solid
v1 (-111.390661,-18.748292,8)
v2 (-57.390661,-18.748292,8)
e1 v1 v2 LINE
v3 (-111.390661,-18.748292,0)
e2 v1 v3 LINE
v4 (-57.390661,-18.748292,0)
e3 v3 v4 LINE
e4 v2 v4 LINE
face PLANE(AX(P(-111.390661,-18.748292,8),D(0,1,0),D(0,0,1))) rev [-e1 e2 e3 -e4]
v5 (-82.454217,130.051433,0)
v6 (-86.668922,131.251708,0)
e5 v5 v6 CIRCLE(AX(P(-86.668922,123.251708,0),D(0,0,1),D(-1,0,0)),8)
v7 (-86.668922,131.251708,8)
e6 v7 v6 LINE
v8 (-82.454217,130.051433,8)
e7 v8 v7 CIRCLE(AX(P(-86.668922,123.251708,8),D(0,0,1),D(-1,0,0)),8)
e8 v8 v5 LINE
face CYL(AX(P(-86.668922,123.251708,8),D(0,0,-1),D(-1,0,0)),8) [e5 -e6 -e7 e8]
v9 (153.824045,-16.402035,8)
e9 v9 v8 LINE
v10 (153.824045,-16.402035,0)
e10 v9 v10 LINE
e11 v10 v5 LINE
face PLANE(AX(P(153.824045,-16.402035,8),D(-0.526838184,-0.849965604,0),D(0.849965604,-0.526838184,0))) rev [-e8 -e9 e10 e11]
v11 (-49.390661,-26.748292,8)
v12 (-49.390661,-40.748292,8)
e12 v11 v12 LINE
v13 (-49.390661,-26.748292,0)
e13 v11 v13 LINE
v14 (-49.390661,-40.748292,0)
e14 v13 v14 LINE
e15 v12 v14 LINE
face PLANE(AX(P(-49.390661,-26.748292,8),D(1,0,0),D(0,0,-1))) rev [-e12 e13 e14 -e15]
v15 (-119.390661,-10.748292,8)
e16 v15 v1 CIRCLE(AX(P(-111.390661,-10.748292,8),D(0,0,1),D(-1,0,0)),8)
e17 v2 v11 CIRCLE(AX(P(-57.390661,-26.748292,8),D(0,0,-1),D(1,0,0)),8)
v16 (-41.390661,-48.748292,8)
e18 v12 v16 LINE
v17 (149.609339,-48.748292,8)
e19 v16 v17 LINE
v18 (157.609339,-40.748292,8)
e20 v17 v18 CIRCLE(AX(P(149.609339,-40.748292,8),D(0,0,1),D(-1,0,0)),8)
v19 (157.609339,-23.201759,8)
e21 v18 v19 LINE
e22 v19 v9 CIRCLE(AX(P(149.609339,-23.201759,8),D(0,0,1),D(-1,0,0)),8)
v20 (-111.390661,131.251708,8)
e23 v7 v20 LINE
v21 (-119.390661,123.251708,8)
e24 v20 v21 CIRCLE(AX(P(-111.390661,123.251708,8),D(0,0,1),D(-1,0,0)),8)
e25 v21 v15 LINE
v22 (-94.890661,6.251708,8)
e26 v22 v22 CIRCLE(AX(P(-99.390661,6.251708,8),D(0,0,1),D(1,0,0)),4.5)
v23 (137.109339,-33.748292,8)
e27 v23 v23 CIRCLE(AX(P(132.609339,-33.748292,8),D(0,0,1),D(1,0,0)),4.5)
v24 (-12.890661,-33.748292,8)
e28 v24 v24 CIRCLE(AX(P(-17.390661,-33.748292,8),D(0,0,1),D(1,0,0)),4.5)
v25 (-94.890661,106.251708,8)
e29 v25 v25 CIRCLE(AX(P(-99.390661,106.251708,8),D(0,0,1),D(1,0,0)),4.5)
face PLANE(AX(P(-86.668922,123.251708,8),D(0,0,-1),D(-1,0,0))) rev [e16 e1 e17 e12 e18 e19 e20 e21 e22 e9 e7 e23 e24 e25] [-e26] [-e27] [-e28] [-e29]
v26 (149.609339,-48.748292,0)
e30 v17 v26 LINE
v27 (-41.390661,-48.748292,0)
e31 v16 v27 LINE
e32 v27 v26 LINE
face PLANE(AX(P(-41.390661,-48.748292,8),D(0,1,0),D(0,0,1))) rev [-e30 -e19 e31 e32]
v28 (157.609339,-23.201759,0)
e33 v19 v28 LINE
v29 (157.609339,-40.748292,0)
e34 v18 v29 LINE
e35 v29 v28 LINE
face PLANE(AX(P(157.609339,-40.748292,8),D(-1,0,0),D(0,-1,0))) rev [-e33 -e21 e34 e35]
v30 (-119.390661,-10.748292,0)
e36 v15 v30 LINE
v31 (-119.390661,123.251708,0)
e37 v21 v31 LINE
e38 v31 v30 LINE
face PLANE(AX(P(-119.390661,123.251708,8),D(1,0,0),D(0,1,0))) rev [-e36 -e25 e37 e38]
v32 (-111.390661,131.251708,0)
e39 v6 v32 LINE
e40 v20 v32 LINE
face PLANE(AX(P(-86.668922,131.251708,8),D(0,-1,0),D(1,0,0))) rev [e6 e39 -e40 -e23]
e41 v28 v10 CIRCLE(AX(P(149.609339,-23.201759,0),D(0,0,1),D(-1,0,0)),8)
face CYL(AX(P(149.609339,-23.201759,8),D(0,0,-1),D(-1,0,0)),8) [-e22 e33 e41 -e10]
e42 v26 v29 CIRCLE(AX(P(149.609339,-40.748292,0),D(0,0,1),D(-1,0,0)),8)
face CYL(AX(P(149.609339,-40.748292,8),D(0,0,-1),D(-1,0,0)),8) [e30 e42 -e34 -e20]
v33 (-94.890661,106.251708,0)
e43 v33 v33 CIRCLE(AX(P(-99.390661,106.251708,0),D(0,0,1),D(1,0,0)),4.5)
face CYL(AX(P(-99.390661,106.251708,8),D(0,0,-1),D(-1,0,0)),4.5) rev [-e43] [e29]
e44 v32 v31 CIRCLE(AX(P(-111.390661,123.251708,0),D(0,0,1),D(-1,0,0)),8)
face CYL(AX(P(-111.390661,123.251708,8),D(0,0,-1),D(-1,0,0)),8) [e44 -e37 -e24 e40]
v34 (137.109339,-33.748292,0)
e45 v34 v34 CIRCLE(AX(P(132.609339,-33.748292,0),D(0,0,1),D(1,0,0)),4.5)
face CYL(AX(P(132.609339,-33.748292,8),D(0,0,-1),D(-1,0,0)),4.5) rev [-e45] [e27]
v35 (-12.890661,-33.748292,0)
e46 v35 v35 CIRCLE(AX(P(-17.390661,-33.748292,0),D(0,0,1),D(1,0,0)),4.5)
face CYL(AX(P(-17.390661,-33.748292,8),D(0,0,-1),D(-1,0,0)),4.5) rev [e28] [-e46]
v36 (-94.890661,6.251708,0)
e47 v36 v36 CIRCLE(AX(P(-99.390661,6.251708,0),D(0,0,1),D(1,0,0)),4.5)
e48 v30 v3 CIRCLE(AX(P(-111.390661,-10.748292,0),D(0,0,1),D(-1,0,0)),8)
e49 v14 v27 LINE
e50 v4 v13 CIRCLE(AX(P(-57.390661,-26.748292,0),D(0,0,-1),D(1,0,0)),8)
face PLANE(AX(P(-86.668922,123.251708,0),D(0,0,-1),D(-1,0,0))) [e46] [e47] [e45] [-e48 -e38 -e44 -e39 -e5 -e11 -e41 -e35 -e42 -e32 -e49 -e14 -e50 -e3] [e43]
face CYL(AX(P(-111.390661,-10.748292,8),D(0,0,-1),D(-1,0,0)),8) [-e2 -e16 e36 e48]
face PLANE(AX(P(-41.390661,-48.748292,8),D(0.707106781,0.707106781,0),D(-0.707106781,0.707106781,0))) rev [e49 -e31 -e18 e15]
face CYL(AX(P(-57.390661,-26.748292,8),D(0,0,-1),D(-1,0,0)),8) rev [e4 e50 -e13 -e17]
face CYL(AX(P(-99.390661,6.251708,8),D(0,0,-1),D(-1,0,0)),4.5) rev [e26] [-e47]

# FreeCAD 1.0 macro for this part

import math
import FreeCAD as App
import Part
import Sketcher

V = App.Vector
Q = App.Units.Quantity

doc = App.newDocument("Part")
params = doc.addObject("Spreadsheet::Sheet", "Params")
for row, (alias, value) in enumerate([
    ("sketch1_diameter", "9 mm"),
    ("sketch1_radius", "8 mm"),
    ("sketch1_width", "54 mm"),
    ("sketch1_width2", "191 mm"),
    ("sketch1_height", "134 mm"),
    ("pad1_length", "8 mm"),
], start=1):
    params.set(f"A{row}", alias)
    params.set(f"B{row}", "=" + value)
    params.setAlias(f"B{row}", alias)

body = doc.addObject("PartDesign::Body", "Body")

# Sketch on XY plane
sketch1 = body.newObject("Sketcher::SketchObject", "Sketch")
sketch1.AttachmentSupport = (doc.getObject("XY_Plane"), [""])
sketch1.MapMode = "FlatFace"
sketch1.addGeometry([
    Part.LineSegment(V(-119.4, 123.3, 0), V(-119.4, -10.7, 0)),  # 0
    Part.ArcOfCircle(Part.Circle(V(-111.4, -10.7, 0), V(0, 0, 1), 8), math.radians(180), math.radians(270)),  # 1
    Part.LineSegment(V(-111.4, -18.7, 0), V(-57.4, -18.7, 0)),  # 2
    Part.ArcOfCircle(Part.Circle(V(-57.4, -26.7, 0), V(0, 0, 1), 8), math.radians(0), math.radians(90)),  # 3
    Part.LineSegment(V(-49.4, -26.7, 0), V(-49.4, -40.7, 0)),  # 4
    Part.LineSegment(V(-49.4, -40.7, 0), V(-41.4, -48.7, 0)),  # 5
    Part.LineSegment(V(-41.4, -48.7, 0), V(149.6, -48.7, 0)),  # 6
    Part.ArcOfCircle(Part.Circle(V(149.6, -40.7, 0), V(0, 0, 1), 8), math.radians(-90), math.radians(0)),  # 7
    Part.LineSegment(V(157.6, -40.7, 0), V(157.6, -23.2, 0)),  # 8
    Part.ArcOfCircle(Part.Circle(V(149.6, -23.2, 0), V(0, 0, 1), 8), math.radians(0), math.radians(58)),  # 9
    Part.LineSegment(V(153.8, -16.4, 0), V(-82.5, 130.1, 0)),  # 10
    Part.ArcOfCircle(Part.Circle(V(-86.7, 123.3, 0), V(0, 0, 1), 8), math.radians(58), math.radians(90)),  # 11
    Part.LineSegment(V(-86.7, 131.3, 0), V(-111.4, 131.3, 0)),  # 12
    Part.ArcOfCircle(Part.Circle(V(-111.4, 123.3, 0), V(0, 0, 1), 8), math.radians(90), math.radians(180)),  # 13
    Part.Circle(V(-17.4, -33.7, 0), V(0, 0, 1), 4.5),  # 14
    Part.Circle(V(-99.4, 6.3, 0), V(0, 0, 1), 4.5),  # 15
    Part.Circle(V(132.6, -33.7, 0), V(0, 0, 1), 4.5),  # 16
    Part.Circle(V(-99.4, 106.3, 0), V(0, 0, 1), 4.5),  # 17
], False)
sketch1.addConstraint([
    Sketcher.Constraint("Tangent", 0, 2, 1, 1),
    Sketcher.Constraint("Tangent", 1, 2, 2, 1),
    Sketcher.Constraint("Tangent", 2, 2, 3, 2),
    Sketcher.Constraint("Tangent", 3, 1, 4, 1),
    Sketcher.Constraint("Coincident", 4, 2, 5, 1),
    Sketcher.Constraint("Coincident", 5, 2, 6, 1),
    Sketcher.Constraint("Tangent", 6, 2, 7, 1),
    Sketcher.Constraint("Tangent", 7, 2, 8, 1),
    Sketcher.Constraint("Tangent", 8, 2, 9, 1),
    Sketcher.Constraint("Tangent", 9, 2, 10, 1),
    Sketcher.Constraint("Tangent", 10, 2, 11, 1),
    Sketcher.Constraint("Tangent", 11, 2, 12, 1),
    Sketcher.Constraint("Tangent", 12, 2, 13, 1),
    Sketcher.Constraint("Tangent", 13, 2, 0, 1),
    Sketcher.Constraint("Vertical", 0),
    Sketcher.Constraint("Horizontal", 2),
    Sketcher.Constraint("Vertical", 4),
    Sketcher.Constraint("Horizontal", 6),
    Sketcher.Constraint("Vertical", 8),
    Sketcher.Constraint("Horizontal", 12),
    Sketcher.Constraint("Equal", 1, 3),
    Sketcher.Constraint("Equal", 3, 7),
    Sketcher.Constraint("Equal", 7, 9),
    Sketcher.Constraint("Equal", 9, 11),
    Sketcher.Constraint("Equal", 11, 13),
    Sketcher.Constraint("Equal", 14, 15),
    Sketcher.Constraint("Equal", 15, 16),
    Sketcher.Constraint("Equal", 16, 17),
    Sketcher.Constraint("Horizontal", 14, 3, 16, 3),
    Sketcher.Constraint("Horizontal", 7, 3, 4, 2),
    Sketcher.Constraint("Vertical", 15, 3, 17, 3),
    Sketcher.Constraint("Diameter", 14, 9.0),
    Sketcher.Constraint("Radius", 1, 8.0),
    Sketcher.Constraint("DistanceX", 2, 1, 2, 2, 54.0),
    Sketcher.Constraint("DistanceX", 6, 1, 6, 2, 191.0),
    Sketcher.Constraint("DistanceY", 0, 2, 0, 1, 134.0),
    Sketcher.Constraint("DistanceY", 4, 2, 4, 1, 14.0),
    Sketcher.Constraint("Angle", 5, Q("-45 deg")),
    Sketcher.Constraint("DistanceX", 3, 3, 14, 3, 40.0),
    Sketcher.Constraint("DistanceY", 14, 3, 3, 3, 7.0),
    Sketcher.Constraint("DistanceX", 1, 3, 15, 3, 12.0),
    Sketcher.Constraint("DistanceY", 1, 3, 15, 3, 17.0),
    Sketcher.Constraint("DistanceX", 16, 3, 7, 3, 17.0),
    Sketcher.Constraint("DistanceY", 17, 3, 13, 3, 17.0),
    Sketcher.Constraint("DistanceX", 12, 2, 12, 1, 24.721738),
    Sketcher.Constraint("DistanceY", 8, 1, 8, 2, 17.546532),
    Sketcher.Constraint("DistanceX", 1, 3, -1, 1, 111.390661),
    Sketcher.Constraint("DistanceY", 1, 3, -1, 1, 10.748292),
])
sketch1.setExpression("Constraints[31]", "Params.sketch1_diameter")
sketch1.setExpression("Constraints[32]", "Params.sketch1_radius")
sketch1.setExpression("Constraints[33]", "Params.sketch1_width")
sketch1.setExpression("Constraints[34]", "Params.sketch1_width2")
sketch1.setExpression("Constraints[35]", "Params.sketch1_height")
pad1 = body.newObject("PartDesign::Pad", "Pad")
pad1.Profile = sketch1
pad1.setExpression("Length", "Params.pad1_length")

doc.recompute()
